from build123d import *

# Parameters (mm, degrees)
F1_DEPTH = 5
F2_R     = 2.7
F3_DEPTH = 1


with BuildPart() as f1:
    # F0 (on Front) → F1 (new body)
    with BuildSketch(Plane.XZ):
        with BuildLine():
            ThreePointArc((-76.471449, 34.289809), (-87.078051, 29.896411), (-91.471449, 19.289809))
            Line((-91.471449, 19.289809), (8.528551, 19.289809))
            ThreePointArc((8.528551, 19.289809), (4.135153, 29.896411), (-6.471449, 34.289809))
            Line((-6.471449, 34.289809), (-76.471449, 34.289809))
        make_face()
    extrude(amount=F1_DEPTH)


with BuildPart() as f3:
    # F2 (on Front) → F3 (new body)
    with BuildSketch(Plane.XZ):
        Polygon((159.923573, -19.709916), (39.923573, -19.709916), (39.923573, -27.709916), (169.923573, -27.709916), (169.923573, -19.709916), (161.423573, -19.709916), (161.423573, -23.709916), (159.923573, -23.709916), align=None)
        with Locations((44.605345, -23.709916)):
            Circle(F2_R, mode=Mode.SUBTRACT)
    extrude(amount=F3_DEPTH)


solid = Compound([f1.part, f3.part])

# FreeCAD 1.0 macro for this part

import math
import FreeCAD as App
import Part
import Sketcher

V = App.Vector

doc = App.newDocument("Part")
body = doc.addObject("PartDesign::Body", "Body")

# Sketch on XZ plane
sketch1 = body.newObject("Sketcher::SketchObject", "Sketch")
sketch1.AttachmentSupport = (doc.getObject("XZ_Plane"), [""])
sketch1.MapMode = "FlatFace"
sketch1.addGeometry([
    Part.ArcOfCircle(Part.Circle(V(-76, 19, 0), V(0, 0, 1), 15), math.radians(90), math.radians(180)),
    Part.LineSegment(V(-91, 19, 0), V(9, 19, 0)),
    Part.ArcOfCircle(Part.Circle(V(-6, 19, 0), V(0, 0, 1), 15), math.radians(0), math.radians(90)),
    Part.LineSegment(V(-6, 34, 0), V(-76, 34, 0)),
], False)
sketch1.addConstraint([
    Sketcher.Constraint("Coincident", 0, 2, 1, 1),
    Sketcher.Constraint("Coincident", 1, 2, 2, 1),
    Sketcher.Constraint("Tangent", 2, 2, 3, 1),
    Sketcher.Constraint("Tangent", 3, 2, 0, 1),
    Sketcher.Constraint("Horizontal", 1),
    Sketcher.Constraint("Horizontal", 3),
    Sketcher.Constraint("Equal", 0, 2),
    Sketcher.Constraint("Horizontal", 2, 3, 0, 2),
    Sketcher.Constraint("Radius", 0, 14.999999),
    Sketcher.Constraint("DistanceX", 1, 1, 1, 2, 100.0),
    Sketcher.Constraint("DistanceX", 0, 3, -1, 1, 76.47145),
    Sketcher.Constraint("DistanceY", -1, 1, 0, 3, 19.28981),
])
pad1 = body.newObject("PartDesign::Pad", "Pad")
pad1.Profile = sketch1
pad1.Length = 5
body2 = doc.addObject("PartDesign::Body", "Body001")

# Sketch on XZ plane
sketch2 = body2.newObject("Sketcher::SketchObject", "Sketch001")
sketch2.AttachmentSupport = (doc.getObject("XZ_Plane001"), [""])
sketch2.MapMode = "FlatFace"
sketch2.addGeometry([
    Part.LineSegment(V(159.9, -19.7, 0), V(39.9, -19.7, 0)),  # 0
    Part.LineSegment(V(39.9, -19.7, 0), V(39.9, -27.7, 0)),  # 1
    Part.LineSegment(V(39.9, -27.7, 0), V(169.9, -27.7, 0)),  # 2
    Part.LineSegment(V(169.9, -27.7, 0), V(169.9, -19.7, 0)),  # 3
    Part.LineSegment(V(169.9, -19.7, 0), V(161.4, -19.7, 0)),  # 4
    Part.LineSegment(V(161.4, -19.7, 0), V(161.4, -23.7, 0)),  # 5
    Part.LineSegment(V(161.4, -23.7, 0), V(159.9, -23.7, 0)),  # 6
    Part.LineSegment(V(159.9, -23.7, 0), V(159.9, -19.7, 0)),  # 7
    Part.Circle(V(44.6, -23.7, 0), V(0, 0, 1), 2.7),  # 8
], False)
sketch2.addConstraint([
    Sketcher.Constraint("Coincident", 0, 2, 1, 1),
    Sketcher.Constraint("Coincident", 1, 2, 2, 1),
    Sketcher.Constraint("Coincident", 2, 2, 3, 1),
    Sketcher.Constraint("Coincident", 3, 2, 4, 1),
    Sketcher.Constraint("Coincident", 4, 2, 5, 1),
    Sketcher.Constraint("Coincident", 5, 2, 6, 1),
    Sketcher.Constraint("Coincident", 6, 2, 7, 1),
    Sketcher.Constraint("Coincident", 7, 2, 0, 1),
    Sketcher.Constraint("Horizontal", 0),
    Sketcher.Constraint("Vertical", 1),
    Sketcher.Constraint("Horizontal", 2),
    Sketcher.Constraint("Vertical", 3),
    Sketcher.Constraint("Horizontal", 4),
    Sketcher.Constraint("Vertical", 5),
    Sketcher.Constraint("Horizontal", 6),
    Sketcher.Constraint("Vertical", 7),
    Sketcher.Constraint("Horizontal", 0, 2, 3, 2),
    Sketcher.Constraint("Horizontal", 8, 3, 5, 2),
    Sketcher.Constraint("Diameter", 8, 5.4),
    Sketcher.Constraint("DistanceX", 0, 2, 0, 1, 120.0),
    Sketcher.Constraint("DistanceX", 2, 1, 2, 2, 130.0),
    Sketcher.Constraint("DistanceY", 1, 2, 1, 1, 8.0),
    Sketcher.Constraint("DistanceY", 5, 2, 5, 1, 4.0),
    Sketcher.Constraint("DistanceX", 4, 2, 4, 1, 8.5),
    Sketcher.Constraint("DistanceX", 8, 3, 2, 2, 125.318228),
    Sketcher.Constraint("DistanceX", -1, 1, 8, 3, 44.605345),
    Sketcher.Constraint("DistanceY", 8, 3, -1, 1, 23.709916),
])
pad2 = body2.newObject("PartDesign::Pad", "Pad001")
pad2.Profile = sketch2
pad2.Length = 1

doc.recompute()
